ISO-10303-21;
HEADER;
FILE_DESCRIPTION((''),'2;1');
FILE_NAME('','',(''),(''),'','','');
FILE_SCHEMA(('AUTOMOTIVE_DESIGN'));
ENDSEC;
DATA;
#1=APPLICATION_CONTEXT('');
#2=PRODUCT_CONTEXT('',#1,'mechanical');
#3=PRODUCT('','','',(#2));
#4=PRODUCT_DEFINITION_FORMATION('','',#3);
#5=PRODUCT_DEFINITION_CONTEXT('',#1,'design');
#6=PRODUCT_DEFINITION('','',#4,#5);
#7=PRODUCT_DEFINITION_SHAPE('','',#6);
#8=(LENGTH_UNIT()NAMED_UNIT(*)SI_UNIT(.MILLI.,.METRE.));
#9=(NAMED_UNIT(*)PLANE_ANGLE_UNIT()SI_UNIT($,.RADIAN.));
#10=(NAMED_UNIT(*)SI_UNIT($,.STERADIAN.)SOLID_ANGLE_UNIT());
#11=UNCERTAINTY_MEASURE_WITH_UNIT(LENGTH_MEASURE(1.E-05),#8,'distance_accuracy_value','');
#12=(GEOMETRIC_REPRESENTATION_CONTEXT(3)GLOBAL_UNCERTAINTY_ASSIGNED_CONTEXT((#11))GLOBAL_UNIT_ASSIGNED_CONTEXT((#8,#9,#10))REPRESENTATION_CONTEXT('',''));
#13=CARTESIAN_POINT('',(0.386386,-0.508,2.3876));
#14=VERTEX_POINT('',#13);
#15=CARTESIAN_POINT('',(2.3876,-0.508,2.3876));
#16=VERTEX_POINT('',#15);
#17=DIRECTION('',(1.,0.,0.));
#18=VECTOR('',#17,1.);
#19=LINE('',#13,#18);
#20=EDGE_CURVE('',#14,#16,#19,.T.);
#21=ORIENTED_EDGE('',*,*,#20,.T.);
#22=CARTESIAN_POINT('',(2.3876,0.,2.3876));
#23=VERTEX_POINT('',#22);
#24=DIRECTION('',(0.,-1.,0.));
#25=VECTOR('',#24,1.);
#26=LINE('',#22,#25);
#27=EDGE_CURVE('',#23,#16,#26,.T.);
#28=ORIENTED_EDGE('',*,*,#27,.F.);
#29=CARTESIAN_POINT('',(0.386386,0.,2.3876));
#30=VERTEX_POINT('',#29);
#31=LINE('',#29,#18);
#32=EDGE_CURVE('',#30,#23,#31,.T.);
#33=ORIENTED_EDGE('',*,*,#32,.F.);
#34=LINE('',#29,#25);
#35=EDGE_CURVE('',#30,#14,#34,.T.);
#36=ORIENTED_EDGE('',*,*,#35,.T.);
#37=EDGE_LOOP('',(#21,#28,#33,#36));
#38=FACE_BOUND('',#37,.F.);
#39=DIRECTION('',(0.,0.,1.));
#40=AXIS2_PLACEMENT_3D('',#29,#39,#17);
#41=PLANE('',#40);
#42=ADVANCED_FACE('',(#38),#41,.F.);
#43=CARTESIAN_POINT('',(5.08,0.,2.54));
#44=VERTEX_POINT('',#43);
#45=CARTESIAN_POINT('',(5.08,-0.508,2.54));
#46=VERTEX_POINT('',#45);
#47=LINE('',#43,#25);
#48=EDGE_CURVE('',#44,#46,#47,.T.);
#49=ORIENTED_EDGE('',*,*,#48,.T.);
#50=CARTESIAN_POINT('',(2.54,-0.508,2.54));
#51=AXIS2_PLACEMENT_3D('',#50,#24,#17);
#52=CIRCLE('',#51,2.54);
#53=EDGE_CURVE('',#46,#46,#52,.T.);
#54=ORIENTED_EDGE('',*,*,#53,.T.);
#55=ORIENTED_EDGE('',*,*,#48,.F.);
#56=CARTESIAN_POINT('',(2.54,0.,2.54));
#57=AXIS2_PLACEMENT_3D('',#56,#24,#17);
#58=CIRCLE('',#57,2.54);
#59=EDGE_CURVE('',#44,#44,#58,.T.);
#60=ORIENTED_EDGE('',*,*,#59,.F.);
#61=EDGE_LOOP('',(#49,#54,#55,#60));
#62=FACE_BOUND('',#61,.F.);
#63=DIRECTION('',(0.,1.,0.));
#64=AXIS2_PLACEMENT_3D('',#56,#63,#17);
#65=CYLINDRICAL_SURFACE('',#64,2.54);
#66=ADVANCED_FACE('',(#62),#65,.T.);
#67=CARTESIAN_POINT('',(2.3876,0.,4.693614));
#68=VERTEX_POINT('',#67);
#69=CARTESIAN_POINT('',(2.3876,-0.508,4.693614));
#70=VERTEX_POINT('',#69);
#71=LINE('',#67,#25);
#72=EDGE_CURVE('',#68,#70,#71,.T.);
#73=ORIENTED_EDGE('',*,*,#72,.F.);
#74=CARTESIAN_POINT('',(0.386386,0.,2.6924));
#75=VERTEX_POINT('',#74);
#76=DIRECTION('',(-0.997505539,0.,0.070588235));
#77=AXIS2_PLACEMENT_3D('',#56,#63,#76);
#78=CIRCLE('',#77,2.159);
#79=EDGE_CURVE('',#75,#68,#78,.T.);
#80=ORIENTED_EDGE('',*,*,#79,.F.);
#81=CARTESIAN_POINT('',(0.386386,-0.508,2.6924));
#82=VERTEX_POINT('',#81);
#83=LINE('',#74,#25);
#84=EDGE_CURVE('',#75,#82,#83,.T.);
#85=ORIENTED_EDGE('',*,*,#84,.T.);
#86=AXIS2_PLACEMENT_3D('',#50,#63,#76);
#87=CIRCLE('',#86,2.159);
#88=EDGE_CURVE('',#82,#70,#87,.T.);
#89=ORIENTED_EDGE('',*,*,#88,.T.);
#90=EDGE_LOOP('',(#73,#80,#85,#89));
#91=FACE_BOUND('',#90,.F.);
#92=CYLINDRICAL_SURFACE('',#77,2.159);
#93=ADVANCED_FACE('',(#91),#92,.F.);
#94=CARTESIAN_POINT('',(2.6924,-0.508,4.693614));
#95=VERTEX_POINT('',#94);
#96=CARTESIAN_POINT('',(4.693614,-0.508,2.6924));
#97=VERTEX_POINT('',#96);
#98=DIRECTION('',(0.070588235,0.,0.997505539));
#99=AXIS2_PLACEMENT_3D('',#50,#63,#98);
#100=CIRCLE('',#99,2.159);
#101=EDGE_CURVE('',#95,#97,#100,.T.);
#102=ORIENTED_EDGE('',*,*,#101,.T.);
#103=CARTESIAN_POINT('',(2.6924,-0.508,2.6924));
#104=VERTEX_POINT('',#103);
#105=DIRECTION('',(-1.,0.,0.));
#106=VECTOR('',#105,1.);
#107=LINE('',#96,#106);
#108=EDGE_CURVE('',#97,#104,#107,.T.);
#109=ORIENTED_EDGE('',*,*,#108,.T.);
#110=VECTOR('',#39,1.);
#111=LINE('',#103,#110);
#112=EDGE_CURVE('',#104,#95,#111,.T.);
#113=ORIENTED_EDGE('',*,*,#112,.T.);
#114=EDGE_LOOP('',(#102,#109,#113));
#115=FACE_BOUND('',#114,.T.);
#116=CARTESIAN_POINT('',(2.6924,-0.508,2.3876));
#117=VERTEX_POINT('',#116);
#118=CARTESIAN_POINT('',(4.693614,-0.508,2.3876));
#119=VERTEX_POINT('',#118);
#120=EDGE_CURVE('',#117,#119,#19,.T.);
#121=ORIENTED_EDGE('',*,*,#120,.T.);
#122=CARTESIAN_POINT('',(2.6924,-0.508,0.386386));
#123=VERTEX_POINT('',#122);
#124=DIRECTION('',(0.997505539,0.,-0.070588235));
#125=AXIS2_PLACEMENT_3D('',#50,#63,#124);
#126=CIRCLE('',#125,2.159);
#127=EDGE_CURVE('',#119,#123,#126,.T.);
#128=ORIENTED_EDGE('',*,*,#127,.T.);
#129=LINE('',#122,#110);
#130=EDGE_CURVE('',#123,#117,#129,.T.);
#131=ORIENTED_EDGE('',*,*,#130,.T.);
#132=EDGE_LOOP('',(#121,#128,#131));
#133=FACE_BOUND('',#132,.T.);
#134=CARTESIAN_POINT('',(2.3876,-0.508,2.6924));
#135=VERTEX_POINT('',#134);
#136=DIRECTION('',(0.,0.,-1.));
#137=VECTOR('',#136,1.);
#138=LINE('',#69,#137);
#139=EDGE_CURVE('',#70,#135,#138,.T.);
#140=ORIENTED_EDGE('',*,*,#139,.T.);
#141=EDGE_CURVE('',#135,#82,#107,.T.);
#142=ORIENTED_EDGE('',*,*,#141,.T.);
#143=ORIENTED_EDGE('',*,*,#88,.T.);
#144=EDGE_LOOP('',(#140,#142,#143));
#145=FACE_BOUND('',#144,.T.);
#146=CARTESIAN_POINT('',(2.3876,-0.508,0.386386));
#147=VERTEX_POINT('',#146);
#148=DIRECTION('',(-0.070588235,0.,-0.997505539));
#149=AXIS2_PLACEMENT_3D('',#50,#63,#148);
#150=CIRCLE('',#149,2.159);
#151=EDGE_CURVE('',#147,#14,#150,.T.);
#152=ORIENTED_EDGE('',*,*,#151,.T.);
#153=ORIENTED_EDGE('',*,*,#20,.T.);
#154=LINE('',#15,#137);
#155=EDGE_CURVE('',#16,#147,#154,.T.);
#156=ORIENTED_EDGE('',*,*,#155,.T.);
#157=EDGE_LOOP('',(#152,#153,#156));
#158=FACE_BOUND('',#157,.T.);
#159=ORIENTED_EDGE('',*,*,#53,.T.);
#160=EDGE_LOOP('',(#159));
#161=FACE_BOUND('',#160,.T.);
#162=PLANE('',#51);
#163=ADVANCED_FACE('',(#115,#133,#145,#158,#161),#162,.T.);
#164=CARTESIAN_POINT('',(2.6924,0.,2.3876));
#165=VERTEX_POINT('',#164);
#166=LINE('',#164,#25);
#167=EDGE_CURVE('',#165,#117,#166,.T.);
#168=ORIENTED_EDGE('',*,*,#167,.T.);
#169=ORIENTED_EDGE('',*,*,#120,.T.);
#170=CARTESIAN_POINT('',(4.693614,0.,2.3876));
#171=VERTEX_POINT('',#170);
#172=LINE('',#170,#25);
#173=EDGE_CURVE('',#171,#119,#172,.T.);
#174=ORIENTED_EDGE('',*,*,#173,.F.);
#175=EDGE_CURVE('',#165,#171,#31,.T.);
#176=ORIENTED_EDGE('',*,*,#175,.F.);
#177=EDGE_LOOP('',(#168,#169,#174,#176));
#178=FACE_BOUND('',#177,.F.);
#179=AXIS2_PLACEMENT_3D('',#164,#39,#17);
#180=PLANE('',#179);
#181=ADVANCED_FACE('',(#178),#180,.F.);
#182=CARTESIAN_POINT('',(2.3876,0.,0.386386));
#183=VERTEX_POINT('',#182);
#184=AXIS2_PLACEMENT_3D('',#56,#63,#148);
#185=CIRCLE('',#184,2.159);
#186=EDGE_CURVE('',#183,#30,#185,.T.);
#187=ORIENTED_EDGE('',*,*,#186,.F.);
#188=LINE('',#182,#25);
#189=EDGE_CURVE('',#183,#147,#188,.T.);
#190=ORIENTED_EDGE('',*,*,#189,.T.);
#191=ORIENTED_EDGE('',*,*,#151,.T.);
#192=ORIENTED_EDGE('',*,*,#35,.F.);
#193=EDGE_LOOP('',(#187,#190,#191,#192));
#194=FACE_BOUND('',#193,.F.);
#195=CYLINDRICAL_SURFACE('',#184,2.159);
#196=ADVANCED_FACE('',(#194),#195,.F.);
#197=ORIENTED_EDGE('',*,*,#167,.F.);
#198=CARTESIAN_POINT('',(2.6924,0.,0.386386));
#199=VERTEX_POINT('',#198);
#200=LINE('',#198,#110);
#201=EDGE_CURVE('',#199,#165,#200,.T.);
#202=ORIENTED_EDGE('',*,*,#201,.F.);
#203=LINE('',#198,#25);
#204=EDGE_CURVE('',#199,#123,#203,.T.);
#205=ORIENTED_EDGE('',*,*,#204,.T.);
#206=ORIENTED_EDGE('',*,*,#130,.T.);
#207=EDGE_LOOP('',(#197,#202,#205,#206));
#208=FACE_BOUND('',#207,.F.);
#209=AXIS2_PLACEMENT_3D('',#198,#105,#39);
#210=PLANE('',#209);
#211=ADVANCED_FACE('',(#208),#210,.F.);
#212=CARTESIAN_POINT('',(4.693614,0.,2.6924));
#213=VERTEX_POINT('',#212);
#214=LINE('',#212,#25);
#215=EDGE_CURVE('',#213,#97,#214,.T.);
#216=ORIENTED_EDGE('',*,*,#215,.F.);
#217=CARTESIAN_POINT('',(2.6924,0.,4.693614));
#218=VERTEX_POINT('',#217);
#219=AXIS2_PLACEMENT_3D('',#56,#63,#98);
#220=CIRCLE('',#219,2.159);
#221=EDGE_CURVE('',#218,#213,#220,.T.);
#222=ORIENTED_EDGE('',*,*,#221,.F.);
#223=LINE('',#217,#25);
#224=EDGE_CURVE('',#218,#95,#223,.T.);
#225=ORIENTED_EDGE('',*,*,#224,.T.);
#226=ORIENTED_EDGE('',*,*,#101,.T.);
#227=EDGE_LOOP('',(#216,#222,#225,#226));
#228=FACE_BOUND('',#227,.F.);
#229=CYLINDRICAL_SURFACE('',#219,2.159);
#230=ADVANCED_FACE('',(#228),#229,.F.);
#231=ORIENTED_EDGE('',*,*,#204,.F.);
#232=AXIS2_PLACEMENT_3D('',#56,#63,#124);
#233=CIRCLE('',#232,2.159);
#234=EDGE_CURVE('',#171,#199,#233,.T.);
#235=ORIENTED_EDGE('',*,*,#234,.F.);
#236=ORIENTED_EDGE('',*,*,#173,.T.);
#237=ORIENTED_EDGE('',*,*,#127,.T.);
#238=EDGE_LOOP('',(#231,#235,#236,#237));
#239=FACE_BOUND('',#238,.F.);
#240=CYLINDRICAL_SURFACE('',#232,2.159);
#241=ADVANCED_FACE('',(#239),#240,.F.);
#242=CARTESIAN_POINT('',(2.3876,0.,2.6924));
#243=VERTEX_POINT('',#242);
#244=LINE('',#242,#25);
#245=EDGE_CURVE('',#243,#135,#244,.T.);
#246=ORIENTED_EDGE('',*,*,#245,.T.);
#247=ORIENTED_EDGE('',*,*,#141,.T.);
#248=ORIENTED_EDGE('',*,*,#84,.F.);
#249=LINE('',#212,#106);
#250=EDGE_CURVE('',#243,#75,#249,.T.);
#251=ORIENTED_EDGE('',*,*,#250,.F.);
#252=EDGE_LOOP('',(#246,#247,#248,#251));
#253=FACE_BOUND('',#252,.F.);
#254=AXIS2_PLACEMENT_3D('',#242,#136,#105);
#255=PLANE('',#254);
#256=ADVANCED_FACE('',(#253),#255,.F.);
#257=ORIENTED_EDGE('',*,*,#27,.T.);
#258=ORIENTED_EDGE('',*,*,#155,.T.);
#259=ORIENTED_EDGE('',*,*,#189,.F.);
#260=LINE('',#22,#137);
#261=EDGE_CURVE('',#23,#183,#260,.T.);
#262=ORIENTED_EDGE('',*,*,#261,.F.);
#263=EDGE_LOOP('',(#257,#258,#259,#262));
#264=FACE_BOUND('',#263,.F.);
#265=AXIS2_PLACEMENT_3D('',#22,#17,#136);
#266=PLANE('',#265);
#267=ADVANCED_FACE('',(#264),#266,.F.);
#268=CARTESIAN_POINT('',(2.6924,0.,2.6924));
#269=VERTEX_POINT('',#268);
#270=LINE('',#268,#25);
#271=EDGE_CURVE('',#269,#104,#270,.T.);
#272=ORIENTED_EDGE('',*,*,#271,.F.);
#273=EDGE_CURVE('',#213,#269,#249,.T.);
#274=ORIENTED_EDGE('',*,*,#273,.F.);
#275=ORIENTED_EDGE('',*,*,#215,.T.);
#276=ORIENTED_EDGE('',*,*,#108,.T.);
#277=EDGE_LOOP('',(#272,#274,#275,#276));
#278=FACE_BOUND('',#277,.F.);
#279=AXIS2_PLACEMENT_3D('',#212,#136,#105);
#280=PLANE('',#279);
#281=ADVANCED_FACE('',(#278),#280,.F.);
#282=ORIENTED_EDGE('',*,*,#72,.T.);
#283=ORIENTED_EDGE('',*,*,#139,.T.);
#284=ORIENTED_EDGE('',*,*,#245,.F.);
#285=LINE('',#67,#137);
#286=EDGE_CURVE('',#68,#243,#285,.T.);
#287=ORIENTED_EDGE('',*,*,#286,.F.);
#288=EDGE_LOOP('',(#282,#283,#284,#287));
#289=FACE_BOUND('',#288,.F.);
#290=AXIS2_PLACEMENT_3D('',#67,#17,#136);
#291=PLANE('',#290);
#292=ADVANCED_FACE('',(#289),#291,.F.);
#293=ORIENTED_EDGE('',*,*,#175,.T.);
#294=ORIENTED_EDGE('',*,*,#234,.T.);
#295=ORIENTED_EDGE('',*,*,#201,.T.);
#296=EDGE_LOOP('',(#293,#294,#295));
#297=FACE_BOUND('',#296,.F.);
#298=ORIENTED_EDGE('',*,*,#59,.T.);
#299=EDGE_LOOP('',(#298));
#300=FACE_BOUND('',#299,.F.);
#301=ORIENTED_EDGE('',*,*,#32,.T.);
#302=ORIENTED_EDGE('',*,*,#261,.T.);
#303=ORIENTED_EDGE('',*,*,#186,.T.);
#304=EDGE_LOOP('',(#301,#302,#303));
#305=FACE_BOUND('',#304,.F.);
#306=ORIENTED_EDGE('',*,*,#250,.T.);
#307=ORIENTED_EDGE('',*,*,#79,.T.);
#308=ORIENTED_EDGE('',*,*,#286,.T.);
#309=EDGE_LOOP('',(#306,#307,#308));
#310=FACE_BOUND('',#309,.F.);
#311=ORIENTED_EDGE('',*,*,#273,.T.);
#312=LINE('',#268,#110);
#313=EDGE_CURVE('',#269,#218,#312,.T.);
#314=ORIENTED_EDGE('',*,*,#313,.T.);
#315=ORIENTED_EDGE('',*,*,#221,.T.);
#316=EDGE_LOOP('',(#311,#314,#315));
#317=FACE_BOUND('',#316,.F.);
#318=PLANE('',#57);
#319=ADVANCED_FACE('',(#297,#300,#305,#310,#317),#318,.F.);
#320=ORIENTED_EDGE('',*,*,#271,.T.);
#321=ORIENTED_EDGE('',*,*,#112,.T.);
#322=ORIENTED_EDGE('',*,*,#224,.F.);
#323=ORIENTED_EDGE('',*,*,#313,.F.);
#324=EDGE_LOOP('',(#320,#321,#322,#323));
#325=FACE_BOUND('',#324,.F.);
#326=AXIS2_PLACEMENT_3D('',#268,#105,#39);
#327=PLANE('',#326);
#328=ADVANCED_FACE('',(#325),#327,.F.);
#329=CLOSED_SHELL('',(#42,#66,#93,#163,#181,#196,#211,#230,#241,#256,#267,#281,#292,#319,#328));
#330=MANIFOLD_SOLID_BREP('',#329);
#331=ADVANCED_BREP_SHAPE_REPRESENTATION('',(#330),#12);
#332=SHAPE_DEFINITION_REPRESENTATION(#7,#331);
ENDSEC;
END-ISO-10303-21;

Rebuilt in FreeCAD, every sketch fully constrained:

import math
import FreeCAD as App
import Part
import Sketcher
from FreeCAD import Vector
Q = App.Units.Quantity

doc = App.newDocument("Part")
body = doc.addObject("PartDesign::Body", "Body")

sketch1 = body.newObject("Sketcher::SketchObject", "Sketch")
sketch1.AttachmentSupport = (doc.getObject("XZ_Plane"), [""])
sketch1.MapMode = "FlatFace"
sketch1.addGeometry(Part.Circle(Vector(2.54, 2.54, 0), Vector(0, 0, 1), 2.54), False)
sketch1.addGeometry(Part.ArcOfCircle(Part.Circle(Vector(2.54, 2.54, 0), Vector(0, 0, 1), 2.159), math.radians(-85.952226), math.radians(-4.047774)), False)
sketch1.addGeometry(Part.LineSegment(Vector(2.6924, 0.386386, 0), Vector(2.6924, 2.3876, 0)), False)
sketch1.addGeometry(Part.LineSegment(Vector(2.6924, 2.3876, 0), Vector(4.693614, 2.3876, 0)), False)
sketch1.addGeometry(Part.ArcOfCircle(Part.Circle(Vector(2.54, 2.54, 0), Vector(0, 0, 1), 2.159), math.radians(-175.952226), math.radians(-94.047774)), False)
sketch1.addGeometry(Part.LineSegment(Vector(0.386386, 2.3876, 0), Vector(2.3876, 2.3876, 0)), False)
sketch1.addGeometry(Part.LineSegment(Vector(2.3876, 2.3876, 0), Vector(2.3876, 0.386386, 0)), False)
sketch1.addGeometry(Part.LineSegment(Vector(4.693614, 2.6924, 0), Vector(2.6924, 2.6924, 0)), False)
sketch1.addGeometry(Part.LineSegment(Vector(2.6924, 2.6924, 0), Vector(2.6924, 4.693614, 0)), False)
sketch1.addGeometry(Part.ArcOfCircle(Part.Circle(Vector(2.54, 2.54, 0), Vector(0, 0, 1), 2.159), math.radians(4.047774), math.radians(85.952226)), False)
sketch1.addGeometry(Part.LineSegment(Vector(2.3876, 2.6924, 0), Vector(0.386386, 2.6924, 0)), False)
sketch1.addGeometry(Part.ArcOfCircle(Part.Circle(Vector(2.54, 2.54, 0), Vector(0, 0, 1), 2.159), math.radians(94.047774), math.radians(175.952226)), False)
sketch1.addGeometry(Part.LineSegment(Vector(2.3876, 4.693614, 0), Vector(2.3876, 2.6924, 0)), False)
sketch1.addConstraint(Sketcher.Constraint("Coincident", 1, 1, 2, 1))
sketch1.addConstraint(Sketcher.Constraint("Coincident", 2, 2, 3, 1))
sketch1.addConstraint(Sketcher.Constraint("Coincident", 3, 2, 1, 2))
sketch1.addConstraint(Sketcher.Constraint("Coincident", 4, 1, 5, 1))
sketch1.addConstraint(Sketcher.Constraint("Coincident", 5, 2, 6, 1))
sketch1.addConstraint(Sketcher.Constraint("Coincident", 6, 2, 4, 2))
sketch1.addConstraint(Sketcher.Constraint("Coincident", 7, 2, 8, 1))
sketch1.addConstraint(Sketcher.Constraint("Coincident", 8, 2, 9, 2))
sketch1.addConstraint(Sketcher.Constraint("Coincident", 9, 1, 7, 1))
sketch1.addConstraint(Sketcher.Constraint("Coincident", 10, 2, 11, 2))
sketch1.addConstraint(Sketcher.Constraint("Coincident", 11, 1, 12, 1))
sketch1.addConstraint(Sketcher.Constraint("Coincident", 12, 2, 10, 1))
sketch1.addConstraint(Sketcher.Constraint("Vertical", 2))
sketch1.addConstraint(Sketcher.Constraint("Horizontal", 3))
sketch1.addConstraint(Sketcher.Constraint("Horizontal", 5))
sketch1.addConstraint(Sketcher.Constraint("Vertical", 6))
sketch1.addConstraint(Sketcher.Constraint("Horizontal", 7))
sketch1.addConstraint(Sketcher.Constraint("Vertical", 8))
sketch1.addConstraint(Sketcher.Constraint("Horizontal", 10))
sketch1.addConstraint(Sketcher.Constraint("Vertical", 12))
sketch1.addConstraint(Sketcher.Constraint("Coincident", 1, 3, 0, 3))
sketch1.addConstraint(Sketcher.Constraint("Coincident", 4, 3, 0, 3))
sketch1.addConstraint(Sketcher.Constraint("Coincident", 9, 3, 0, 3))
sketch1.addConstraint(Sketcher.Constraint("Coincident", 11, 3, 0, 3))
sketch1.addConstraint(Sketcher.Constraint("Equal", 1, 4))
sketch1.addConstraint(Sketcher.Constraint("Equal", 4, 9))
sketch1.addConstraint(Sketcher.Constraint("Equal", 9, 11))
sketch1.addConstraint(Sketcher.Constraint("Horizontal", 3, 2, 4, 1))
sketch1.addConstraint(Sketcher.Constraint("Horizontal", 1, 1, 6, 2))
sketch1.addConstraint(Sketcher.Constraint("Horizontal", 9, 1, 10, 2))
sketch1.addConstraint(Sketcher.Constraint("Horizontal", 8, 2, 11, 1))
sketch1.addConstraint(Sketcher.Constraint("Vertical", 2, 2, 7, 2))
sketch1.addConstraint(Sketcher.Constraint("Vertical", 3, 2, 9, 1))
sketch1.addConstraint(Sketcher.Constraint("Equal", 10, 2))
sketch1.addConstraint(Sketcher.Constraint("Diameter", 0, Q("0.2 in")))
sketch1.addConstraint(Sketcher.Constraint("Radius", 1, Q("0.085 in")))
sketch1.addConstraint(Sketcher.Constraint("DistanceX", -1, 1, 0, 3, Q("0.1 in")))
sketch1.addConstraint(Sketcher.Constraint("DistanceY", -1, 1, 0, 3, Q("0.1 in")))
sketch1.addConstraint(Sketcher.Constraint("DistanceX", -1, 1, 1, 1, Q("0.106 in")))
pad1 = body.newObject("PartDesign::Pad", "Pad")
pad1.Profile = sketch1
pad1.Length = Q("0.02 in")

doc.recompute()
